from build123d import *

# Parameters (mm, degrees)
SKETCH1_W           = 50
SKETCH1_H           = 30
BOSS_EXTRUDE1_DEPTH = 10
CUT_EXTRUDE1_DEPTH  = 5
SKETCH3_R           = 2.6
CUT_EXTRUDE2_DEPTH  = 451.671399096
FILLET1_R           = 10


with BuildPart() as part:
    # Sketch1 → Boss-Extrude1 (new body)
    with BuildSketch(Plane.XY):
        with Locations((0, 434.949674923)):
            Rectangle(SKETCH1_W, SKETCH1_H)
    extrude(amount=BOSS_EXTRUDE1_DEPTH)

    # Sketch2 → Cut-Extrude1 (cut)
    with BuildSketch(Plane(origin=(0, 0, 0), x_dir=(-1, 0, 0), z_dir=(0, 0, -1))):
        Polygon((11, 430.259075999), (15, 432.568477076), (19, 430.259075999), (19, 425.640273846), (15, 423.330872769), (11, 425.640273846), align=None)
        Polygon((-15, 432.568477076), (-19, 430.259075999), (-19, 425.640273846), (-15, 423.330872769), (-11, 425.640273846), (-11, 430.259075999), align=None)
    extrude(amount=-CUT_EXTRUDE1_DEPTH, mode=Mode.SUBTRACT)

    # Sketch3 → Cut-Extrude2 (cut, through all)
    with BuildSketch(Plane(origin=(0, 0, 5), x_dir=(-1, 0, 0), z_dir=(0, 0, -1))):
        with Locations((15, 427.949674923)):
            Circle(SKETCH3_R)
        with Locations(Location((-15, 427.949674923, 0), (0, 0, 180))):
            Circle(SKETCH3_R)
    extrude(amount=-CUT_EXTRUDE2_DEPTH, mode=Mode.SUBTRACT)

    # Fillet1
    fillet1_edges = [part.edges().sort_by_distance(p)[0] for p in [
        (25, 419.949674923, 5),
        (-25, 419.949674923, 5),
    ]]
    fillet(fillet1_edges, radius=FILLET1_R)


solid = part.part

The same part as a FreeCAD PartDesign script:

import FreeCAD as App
import Part
import Sketcher

V = App.Vector
Q = App.Units.Quantity


def edges_at(feature, points):
    """Names of the edges that pass closest to the given points."""
    edges = feature.Shape.Edges
    near = lambda p: min(range(len(edges)), key=lambda i: edges[i].distToShape(Part.Vertex(*p))[0])
    return sorted({f"Edge{near(p) + 1}" for p in points})

doc = App.newDocument("Part")
body = doc.addObject("PartDesign::Body", "Body")

# Sketch on XY plane
sketch1 = body.newObject("Sketcher::SketchObject", "Sketch")
sketch1.AttachmentSupport = (doc.getObject("XY_Plane"), [""])
sketch1.MapMode = "FlatFace"
sketch1.addGeometry([
    Part.LineSegment(V(-25, 450, 0), V(-25, 420, 0)),
    Part.LineSegment(V(-25, 420, 0), V(25, 420, 0)),
    Part.LineSegment(V(25, 420, 0), V(25, 450, 0)),
    Part.LineSegment(V(25, 450, 0), V(-25, 450, 0)),
], False)
sketch1.addConstraint([
    Sketcher.Constraint("Coincident", 0, 2, 1, 1),
    Sketcher.Constraint("Coincident", 1, 2, 2, 1),
    Sketcher.Constraint("Coincident", 2, 2, 3, 1),
    Sketcher.Constraint("Coincident", 3, 2, 0, 1),
    Sketcher.Constraint("Vertical", 0),
    Sketcher.Constraint("Horizontal", 1),
    Sketcher.Constraint("Vertical", 2),
    Sketcher.Constraint("Horizontal", 3),
    Sketcher.Constraint("DistanceX", 1, 1, 1, 2, 50.0),
    Sketcher.Constraint("DistanceY", 0, 2, 0, 1, 30.0),
    Sketcher.Constraint("DistanceX", 0, 2, -1, 1, 25.0),
    Sketcher.Constraint("DistanceY", -1, 1, 0, 2, 419.949675),
])
pad1 = body.newObject("PartDesign::Pad", "Pad")
pad1.Profile = sketch1
pad1.Length = 10

# Sketch on XY plane
sketch2 = body.newObject("Sketcher::SketchObject", "Sketch001")
sketch2.AttachmentSupport = (doc.getObject("XY_Plane"), [""])
sketch2.MapMode = "FlatFace"
sketch2.addGeometry([
    Part.LineSegment(V(-15, 432.6, 0), V(-11, 430.3, 0)),  # 0
    Part.LineSegment(V(-11, 430.3, 0), V(-11, 425.6, 0)),  # 1
    Part.LineSegment(V(-11, 425.6, 0), V(-15, 423.3, 0)),  # 2
    Part.LineSegment(V(-15, 423.3, 0), V(-19, 425.6, 0)),  # 3
    Part.LineSegment(V(-19, 425.6, 0), V(-19, 430.3, 0)),  # 4
    Part.LineSegment(V(-19, 430.3, 0), V(-15, 432.6, 0)),  # 5
    Part.LineSegment(V(15, 432.6, 0), V(19, 430.3, 0)),  # 6
    Part.LineSegment(V(19, 430.3, 0), V(19, 425.6, 0)),  # 7
    Part.LineSegment(V(19, 425.6, 0), V(15, 423.3, 0)),  # 8
    Part.LineSegment(V(15, 423.3, 0), V(11, 425.6, 0)),  # 9
    Part.LineSegment(V(11, 425.6, 0), V(11, 430.3, 0)),  # 10
    Part.LineSegment(V(11, 430.3, 0), V(15, 432.6, 0)),  # 11
], False)
sketch2.addConstraint([
    Sketcher.Constraint("Coincident", 0, 2, 1, 1),
    Sketcher.Constraint("Coincident", 1, 2, 2, 1),
    Sketcher.Constraint("Coincident", 2, 2, 3, 1),
    Sketcher.Constraint("Coincident", 3, 2, 4, 1),
    Sketcher.Constraint("Coincident", 4, 2, 5, 1),
    Sketcher.Constraint("Coincident", 5, 2, 0, 1),
    Sketcher.Constraint("Coincident", 6, 2, 7, 1),
    Sketcher.Constraint("Coincident", 7, 2, 8, 1),
    Sketcher.Constraint("Coincident", 8, 2, 9, 1),
    Sketcher.Constraint("Coincident", 9, 2, 10, 1),
    Sketcher.Constraint("Coincident", 10, 2, 11, 1),
    Sketcher.Constraint("Coincident", 11, 2, 6, 1),
    Sketcher.Constraint("Vertical", 1),
    Sketcher.Constraint("Vertical", 4),
    Sketcher.Constraint("Vertical", 7),
    Sketcher.Constraint("Vertical", 10),
    Sketcher.Constraint("Symmetric", 4, 2, 6, 2, -2),
    Sketcher.Constraint("Symmetric", 2, 2, 8, 2, -2),
    Sketcher.Constraint("Symmetric", 1, 2, 9, 2, -2),
    Sketcher.Constraint("Symmetric", 5, 2, 11, 2, -2),
    Sketcher.Constraint("Parallel", 0, 3),
    Sketcher.Constraint("Parallel", 2, 5),
    Sketcher.Constraint("Parallel", 3, 6),
    Sketcher.Constraint("Parallel", 5, 8),
    Sketcher.Constraint("Parallel", 8, 11),
    Sketcher.Constraint("Horizontal", 1, 2, 3, 2),
    Sketcher.Constraint("Horizontal", 0, 2, 4, 2),
    Sketcher.Constraint("Angle", 0, Q("-30 deg")),
    Sketcher.Constraint("DistanceX", 0, 2, -1, 1, 11.0),
    Sketcher.Constraint("DistanceX", 2, 2, -1, 1, 15.0),
    Sketcher.Constraint("DistanceY", 1, 2, 1, 1, 4.618802),
    Sketcher.Constraint("DistanceY", -1, 1, 0, 2, 430.259076),
])
pocket1 = body.newObject("PartDesign::Pocket", "Pocket")
pocket1.Profile = sketch2
pocket1.Length = 5
pocket1.Reversed = True

# Sketch on XY plane
sketch3 = body.newObject("Sketcher::SketchObject", "Sketch002")
sketch3.AttachmentSupport = (doc.getObject("XY_Plane"), [""])
sketch3.MapMode = "FlatFace"
sketch3.AttachmentOffset = App.Placement(V(0, 0, 5), App.Rotation())
sketch3.addGeometry([
    Part.Circle(V(-15, 427.9, 0), V(0, 0, 1), 2.6),
    Part.Circle(V(15, 427.9, 0), V(0, 0, 1), 2.6),
], False)
sketch3.addConstraint([
    Sketcher.Constraint("Equal", 0, 1),
    Sketcher.Constraint("Symmetric", 0, 3, 1, 3, -2),
    Sketcher.Constraint("Diameter", 0, 5.2),
    Sketcher.Constraint("DistanceX", 0, 3, -1, 1, 15.0),
    Sketcher.Constraint("DistanceY", -1, 1, 0, 3, 427.949675),
])
pocket2 = body.newObject("PartDesign::Pocket", "Pocket001")
pocket2.Profile = sketch3
pocket2.Type = "ThroughAll"
pocket2.Reversed = True
doc.recompute()

fillet = body.newObject("PartDesign::Fillet", "Fillet")
fillet.Base = (pocket2, edges_at(pocket2, [(25, 419.95, 5), (-25, 419.95, 5)]))
fillet.Radius = 10

doc.recompute()
